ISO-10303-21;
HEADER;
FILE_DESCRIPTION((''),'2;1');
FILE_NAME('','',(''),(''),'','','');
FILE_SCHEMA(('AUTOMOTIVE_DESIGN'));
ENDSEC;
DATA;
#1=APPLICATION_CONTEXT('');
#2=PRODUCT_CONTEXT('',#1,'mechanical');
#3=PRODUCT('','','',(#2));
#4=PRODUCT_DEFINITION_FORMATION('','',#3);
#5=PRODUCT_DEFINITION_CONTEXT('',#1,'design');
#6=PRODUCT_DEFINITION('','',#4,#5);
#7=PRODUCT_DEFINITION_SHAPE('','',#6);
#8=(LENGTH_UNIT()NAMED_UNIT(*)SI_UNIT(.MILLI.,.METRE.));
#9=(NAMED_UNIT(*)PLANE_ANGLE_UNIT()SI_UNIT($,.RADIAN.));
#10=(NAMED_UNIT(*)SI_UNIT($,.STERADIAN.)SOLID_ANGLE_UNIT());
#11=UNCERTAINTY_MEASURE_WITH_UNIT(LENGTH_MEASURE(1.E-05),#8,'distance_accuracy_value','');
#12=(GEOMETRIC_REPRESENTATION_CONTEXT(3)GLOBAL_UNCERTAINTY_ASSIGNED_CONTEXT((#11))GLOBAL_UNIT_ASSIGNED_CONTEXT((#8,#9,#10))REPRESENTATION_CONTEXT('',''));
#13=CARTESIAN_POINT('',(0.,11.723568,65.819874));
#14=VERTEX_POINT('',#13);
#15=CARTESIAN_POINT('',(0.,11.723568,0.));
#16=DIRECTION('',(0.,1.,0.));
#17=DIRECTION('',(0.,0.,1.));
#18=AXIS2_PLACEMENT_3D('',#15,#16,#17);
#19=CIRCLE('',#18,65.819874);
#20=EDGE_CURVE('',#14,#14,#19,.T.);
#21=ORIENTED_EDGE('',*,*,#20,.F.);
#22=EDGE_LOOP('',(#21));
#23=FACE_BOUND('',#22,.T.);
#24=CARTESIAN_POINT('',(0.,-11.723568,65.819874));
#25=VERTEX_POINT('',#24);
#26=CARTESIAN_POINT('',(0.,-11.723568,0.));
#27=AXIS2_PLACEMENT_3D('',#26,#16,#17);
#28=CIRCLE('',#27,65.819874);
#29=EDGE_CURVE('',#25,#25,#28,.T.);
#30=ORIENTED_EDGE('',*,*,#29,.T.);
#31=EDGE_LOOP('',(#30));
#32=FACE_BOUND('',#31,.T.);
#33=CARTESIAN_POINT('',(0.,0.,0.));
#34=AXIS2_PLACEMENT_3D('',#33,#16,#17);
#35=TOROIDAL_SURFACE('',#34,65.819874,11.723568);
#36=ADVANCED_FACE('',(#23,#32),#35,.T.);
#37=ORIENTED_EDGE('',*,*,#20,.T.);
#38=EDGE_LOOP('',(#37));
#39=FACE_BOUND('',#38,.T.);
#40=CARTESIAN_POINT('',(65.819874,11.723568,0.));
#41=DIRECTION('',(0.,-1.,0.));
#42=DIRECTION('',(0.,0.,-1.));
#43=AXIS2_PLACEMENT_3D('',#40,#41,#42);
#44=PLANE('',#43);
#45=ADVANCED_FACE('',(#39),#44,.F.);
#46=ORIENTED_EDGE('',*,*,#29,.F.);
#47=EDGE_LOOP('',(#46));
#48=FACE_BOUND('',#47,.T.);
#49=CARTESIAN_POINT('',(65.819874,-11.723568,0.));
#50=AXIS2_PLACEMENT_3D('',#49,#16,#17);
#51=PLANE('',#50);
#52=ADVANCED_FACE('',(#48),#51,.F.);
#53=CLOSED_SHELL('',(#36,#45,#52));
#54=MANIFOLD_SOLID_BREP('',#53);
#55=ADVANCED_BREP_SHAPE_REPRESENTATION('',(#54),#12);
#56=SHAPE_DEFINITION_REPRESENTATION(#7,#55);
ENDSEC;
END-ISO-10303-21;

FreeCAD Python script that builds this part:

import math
import FreeCAD as App
import Part
import Sketcher
from FreeCAD import Vector

doc = App.newDocument("Part")
body = doc.addObject("PartDesign::Body", "Body")

# Sketch on XY plane
sketch1 = doc.addObject("Sketcher::SketchObject", "Sketch")
body.addObject(sketch1)
sketch1.AttachmentSupport = (doc.XY_Plane, [""])
sketch1.MapMode = "FlatFace"
sketch1.addGeometry([
    Part.LineSegment(Vector(66, 12, 0), Vector(0, 12, 0)),
    Part.LineSegment(Vector(0, 12, 0), Vector(0, -12, 0)),
    Part.LineSegment(Vector(0, -12, 0), Vector(66, -12, 0)),
    Part.ArcOfCircle(Part.Circle(Vector(66, 0, 0), Vector(0, 0, 1), 12), math.radians(-90), math.radians(90)),
], False)
sketch1.addConstraint([
    Sketcher.Constraint("Coincident", 0, 2, 1, 1),
    Sketcher.Constraint("Coincident", 1, 2, 2, 1),
    Sketcher.Constraint("Tangent", 2, 2, 3, 1),
    Sketcher.Constraint("Tangent", 3, 2, 0, 1),
    Sketcher.Constraint("Horizontal", 0),
    Sketcher.Constraint("Vertical", 1),
    Sketcher.Constraint("Horizontal", 2),
    Sketcher.Constraint("Symmetric", 0, 2, 1, 2, -1, 1),
    Sketcher.Constraint("Radius", 3, 11.723568),
    Sketcher.Constraint("DistanceX", 0, 2, 0, 1, 65.819874),
])
revolution = doc.addObject("PartDesign::Revolution", "Revolution")
body.addObject(revolution)
revolution.Profile = sketch1
revolution.ReferenceAxis = (sketch1, ["V_Axis"])
revolution.Angle = 360

doc.recompute()
